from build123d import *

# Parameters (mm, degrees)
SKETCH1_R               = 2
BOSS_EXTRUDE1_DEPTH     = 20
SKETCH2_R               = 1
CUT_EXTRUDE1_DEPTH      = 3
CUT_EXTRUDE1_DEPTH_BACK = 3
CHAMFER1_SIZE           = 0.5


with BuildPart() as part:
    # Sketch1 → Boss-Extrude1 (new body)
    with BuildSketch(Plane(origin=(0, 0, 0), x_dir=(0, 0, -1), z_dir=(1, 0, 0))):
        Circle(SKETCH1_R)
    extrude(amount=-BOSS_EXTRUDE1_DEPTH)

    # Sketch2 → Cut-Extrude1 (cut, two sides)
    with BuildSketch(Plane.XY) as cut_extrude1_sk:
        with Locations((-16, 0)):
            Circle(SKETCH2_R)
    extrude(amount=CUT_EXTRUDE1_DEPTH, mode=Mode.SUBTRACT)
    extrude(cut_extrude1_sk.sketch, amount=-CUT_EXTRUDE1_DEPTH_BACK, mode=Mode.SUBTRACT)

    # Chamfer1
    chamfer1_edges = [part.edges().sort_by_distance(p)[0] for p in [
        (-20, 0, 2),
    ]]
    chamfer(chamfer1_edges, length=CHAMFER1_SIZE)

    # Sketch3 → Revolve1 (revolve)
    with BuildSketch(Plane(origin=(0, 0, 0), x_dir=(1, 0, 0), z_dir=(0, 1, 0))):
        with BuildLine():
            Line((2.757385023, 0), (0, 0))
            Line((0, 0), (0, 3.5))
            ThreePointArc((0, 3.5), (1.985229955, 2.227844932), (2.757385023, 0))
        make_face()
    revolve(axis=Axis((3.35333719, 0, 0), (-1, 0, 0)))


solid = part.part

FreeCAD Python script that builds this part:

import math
import FreeCAD as App
import Part
import Sketcher
from FreeCAD import Vector


def edges_at(feature, points):
    """Names of the edges that pass closest to the given points."""
    edges = feature.Shape.Edges
    near = lambda p: min(range(len(edges)), key=lambda i: edges[i].distToShape(Part.Vertex(*p))[0])
    return sorted({f"Edge{near(p) + 1}" for p in points})

doc = App.newDocument("Part")
body = doc.addObject("PartDesign::Body", "Body")

# Sketch on YZ plane
sketch1 = body.newObject("Sketcher::SketchObject", "Sketch")
sketch1.AttachmentSupport = (doc.getObject("YZ_Plane"), [""])
sketch1.MapMode = "FlatFace"
sketch1.addGeometry(Part.Circle(Vector(0, 0, 0), Vector(0, 0, 1), 2), False)
sketch1.addConstraint([
    Sketcher.Constraint("Coincident", 0, 3, -1, 1),
    Sketcher.Constraint("Diameter", 0, 4.0),
])
pad1 = body.newObject("PartDesign::Pad", "Pad")
pad1.Profile = sketch1
pad1.Length = 20
pad1.Reversed = True

# Sketch on XY plane
sketch2 = body.newObject("Sketcher::SketchObject", "Sketch001")
sketch2.AttachmentSupport = (doc.getObject("XY_Plane"), [""])
sketch2.MapMode = "FlatFace"
sketch2.addGeometry(Part.Circle(Vector(-16, 0, 0), Vector(0, 0, 1), 1), False)
sketch2.addConstraint([
    Sketcher.Constraint("PointOnObject", 0, 3, -1),
    Sketcher.Constraint("Diameter", 0, 2.0),
    Sketcher.Constraint("DistanceX", 0, 3, -1, 1, 16.0),
])
pocket1 = body.newObject("PartDesign::Pocket", "Pocket")
pocket1.Profile = sketch2
pocket1.Type = "ThroughAll"
pocket1.Midplane = True
doc.recompute()

chamfer = body.newObject("PartDesign::Chamfer", "Chamfer")
chamfer.Base = (pocket1, edges_at(pocket1, [(-20, 0, 2)]))
chamfer.Size = 0.5

# Sketch on XZ plane
sketch3 = body.newObject("Sketcher::SketchObject", "Sketch002")
sketch3.AttachmentSupport = (doc.getObject("XZ_Plane"), [""])
sketch3.MapMode = "FlatFace"
sketch3.addGeometry([
    Part.LineSegment(Vector(0, 0, 0), Vector(2.8, 0, 0)),
    Part.ArcOfCircle(Part.Circle(Vector(-0.8, 0, 0), Vector(0, 0, 1), 3.6), math.radians(-76), math.radians(0)),
    Part.LineSegment(Vector(0, -3.5, 0), Vector(0, 0, 0)),
], False)
sketch3.addConstraint([
    Sketcher.Constraint("Coincident", 0, 2, 1, 2),
    Sketcher.Constraint("Coincident", 1, 1, 2, 1),
    Sketcher.Constraint("Coincident", 2, 2, 0, 1),
    Sketcher.Constraint("Horizontal", 0),
    Sketcher.Constraint("Vertical", 2),
    Sketcher.Constraint("Coincident", 2, 2, -1, 1),
    Sketcher.Constraint("PointOnObject", 1, 3, -1),
    Sketcher.Constraint("Radius", 1, 3.6),
    Sketcher.Constraint("DistanceY", 2, 1, 2, 2, 3.5),
])
revolution = body.newObject("PartDesign::Revolution", "Revolution")
revolution.Profile = sketch3
revolution.ReferenceAxis = (sketch3, ["H_Axis"])
revolution.Angle = 360

doc.recompute()
